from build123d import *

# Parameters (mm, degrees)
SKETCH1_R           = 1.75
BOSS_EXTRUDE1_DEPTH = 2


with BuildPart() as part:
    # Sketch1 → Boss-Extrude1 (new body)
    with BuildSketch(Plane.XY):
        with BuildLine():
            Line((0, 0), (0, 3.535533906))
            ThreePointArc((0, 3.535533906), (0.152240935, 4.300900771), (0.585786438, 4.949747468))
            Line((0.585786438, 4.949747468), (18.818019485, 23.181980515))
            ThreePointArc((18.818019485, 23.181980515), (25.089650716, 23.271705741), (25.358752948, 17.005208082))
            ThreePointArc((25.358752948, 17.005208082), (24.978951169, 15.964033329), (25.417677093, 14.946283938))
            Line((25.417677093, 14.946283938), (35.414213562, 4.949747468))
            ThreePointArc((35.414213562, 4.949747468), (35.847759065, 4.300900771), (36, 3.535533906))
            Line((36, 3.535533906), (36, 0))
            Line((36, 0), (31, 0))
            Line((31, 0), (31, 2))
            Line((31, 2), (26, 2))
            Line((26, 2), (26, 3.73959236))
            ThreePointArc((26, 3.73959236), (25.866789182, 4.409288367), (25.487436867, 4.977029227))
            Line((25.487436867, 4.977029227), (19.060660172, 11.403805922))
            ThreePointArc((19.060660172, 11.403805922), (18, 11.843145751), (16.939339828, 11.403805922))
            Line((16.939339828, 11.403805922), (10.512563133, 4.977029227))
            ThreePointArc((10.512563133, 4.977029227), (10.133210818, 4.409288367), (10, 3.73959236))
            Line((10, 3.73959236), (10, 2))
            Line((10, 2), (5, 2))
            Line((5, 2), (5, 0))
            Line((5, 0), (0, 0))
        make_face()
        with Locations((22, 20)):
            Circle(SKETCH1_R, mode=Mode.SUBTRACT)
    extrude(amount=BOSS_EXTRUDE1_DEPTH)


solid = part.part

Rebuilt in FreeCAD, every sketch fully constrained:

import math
import FreeCAD as App
import Part
import Sketcher
Q = App.Units.Quantity

doc = App.newDocument("Part")
params = doc.addObject("Spreadsheet::Sheet", "Params")
for row, (alias, value) in enumerate([
    ("sketch1_radius", "2 mm"),
    ("sketch1_diameter", "3.5 mm"),
    ("sketch1_radius2", "1.5 mm"),
    ("sketch1_radius3", "4.5 mm"),
    ("sketch1_width", "5 mm"),
    ("pad1_length", "2 mm"),
], start=1):
    params.set(f"A{row}", alias)
    params.set(f"B{row}", "=" + value)
    params.setAlias(f"B{row}", alias)

body = doc.addObject("PartDesign::Body", "Body")

# Sketch on XY plane
sketch1 = body.newObject("Sketcher::SketchObject", "Sketch")
sketch1.AttachmentSupport = (doc.getObject("XY_Plane"), [""])
sketch1.MapMode = "FlatFace"
sketch1.addGeometry([
    Part.LineSegment(App.Vector(0, 3.535534, 0), App.Vector(0, 0, 0)),  # 0
    Part.LineSegment(App.Vector(0, 0, 0), App.Vector(5, 0, 0)),  # 1
    Part.LineSegment(App.Vector(5, 0, 0), App.Vector(5, 2, 0)),  # 2
    Part.LineSegment(App.Vector(5, 2, 0), App.Vector(10, 2, 0)),  # 3
    Part.LineSegment(App.Vector(10, 2, 0), App.Vector(10, 3.739592, 0)),  # 4
    Part.ArcOfCircle(Part.Circle(App.Vector(11.75, 3.739592, 0), App.Vector(0, 0, 1), 1.75), math.radians(135), math.radians(180)),  # 5
    Part.LineSegment(App.Vector(10.512563, 4.977029, 0), App.Vector(16.93934, 11.403806, 0)),  # 6
    Part.ArcOfCircle(Part.Circle(App.Vector(18, 10.343146, 0), App.Vector(0, 0, 1), 1.5), math.radians(45), math.radians(135)),  # 7
    Part.LineSegment(App.Vector(19.06066, 11.403806, 0), App.Vector(25.487437, 4.977029, 0)),  # 8
    Part.ArcOfCircle(Part.Circle(App.Vector(24.25, 3.739592, 0), App.Vector(0, 0, 1), 1.75), math.radians(0), math.radians(45)),  # 9
    Part.LineSegment(App.Vector(26, 3.739592, 0), App.Vector(26, 2, 0)),  # 10
    Part.LineSegment(App.Vector(26, 2, 0), App.Vector(31, 2, 0)),  # 11
    Part.LineSegment(App.Vector(31, 2, 0), App.Vector(31, 0, 0)),  # 12
    Part.LineSegment(App.Vector(31, 0, 0), App.Vector(36, 0, 0)),  # 13
    Part.LineSegment(App.Vector(36, 0, 0), App.Vector(36, 3.535534, 0)),  # 14
    Part.ArcOfCircle(Part.Circle(App.Vector(34, 3.535534, 0), App.Vector(0, 0, 1), 2), math.radians(0), math.radians(45)),  # 15
    Part.LineSegment(App.Vector(35.414214, 4.949747, 0), App.Vector(25.417677, 14.946284, 0)),  # 16
    Part.ArcOfCircle(Part.Circle(App.Vector(26.478337, 16.006944, 0), App.Vector(0, 0, 1), 1.5), math.radians(138.27859), math.radians(225)),  # 17
    Part.ArcOfCircle(Part.Circle(App.Vector(22, 20, 0), App.Vector(0, 0, 1), 4.5), math.radians(-41.721411), math.radians(135)),  # 18
    Part.LineSegment(App.Vector(18.818019, 23.181981, 0), App.Vector(0.585786, 4.949747, 0)),  # 19
    Part.ArcOfCircle(Part.Circle(App.Vector(2, 3.535534, 0), App.Vector(0, 0, 1), 2), math.radians(135), math.radians(180)),  # 20
    Part.Circle(App.Vector(22, 20, 0), App.Vector(0, 0, 1), 1.75),  # 21
], False)
sketch1.addConstraint([
    Sketcher.Constraint("Coincident", 0, 2, 1, 1),
    Sketcher.Constraint("Coincident", 1, 2, 2, 1),
    Sketcher.Constraint("Coincident", 2, 2, 3, 1),
    Sketcher.Constraint("Coincident", 3, 2, 4, 1),
    Sketcher.Constraint("Tangent", 4, 2, 5, 2),
    Sketcher.Constraint("Tangent", 5, 1, 6, 1),
    Sketcher.Constraint("Tangent", 6, 2, 7, 2),
    Sketcher.Constraint("Tangent", 7, 1, 8, 1),
    Sketcher.Constraint("Tangent", 8, 2, 9, 2),
    Sketcher.Constraint("Tangent", 9, 1, 10, 1),
    Sketcher.Constraint("Coincident", 10, 2, 11, 1),
    Sketcher.Constraint("Coincident", 11, 2, 12, 1),
    Sketcher.Constraint("Coincident", 12, 2, 13, 1),
    Sketcher.Constraint("Coincident", 13, 2, 14, 1),
    Sketcher.Constraint("Tangent", 14, 2, 15, 1),
    Sketcher.Constraint("Tangent", 15, 2, 16, 1),
    Sketcher.Constraint("Tangent", 16, 2, 17, 2),
    Sketcher.Constraint("Tangent", 17, 1, 18, 1),
    Sketcher.Constraint("Tangent", 18, 2, 19, 1),
    Sketcher.Constraint("Tangent", 19, 2, 20, 1),
    Sketcher.Constraint("Tangent", 20, 2, 0, 1),
    Sketcher.Constraint("Vertical", 0),
    Sketcher.Constraint("Horizontal", 1),
    Sketcher.Constraint("Vertical", 2),
    Sketcher.Constraint("Horizontal", 3),
    Sketcher.Constraint("Vertical", 4),
    Sketcher.Constraint("Vertical", 10),
    Sketcher.Constraint("Horizontal", 11),
    Sketcher.Constraint("Vertical", 12),
    Sketcher.Constraint("Horizontal", 13),
    Sketcher.Constraint("Vertical", 14),
    Sketcher.Constraint("Coincident", 0, 2, -1, 1),
    Sketcher.Constraint("Coincident", 21, 3, 18, 3),
    Sketcher.Constraint("Equal", 5, 9),
    Sketcher.Constraint("Equal", 7, 17),
    Sketcher.Constraint("Equal", 15, 20),
    Sketcher.Constraint("Equal", 9, 21),
    Sketcher.Constraint("PointOnObject", 12, 2, -1),
    Sketcher.Constraint("Perpendicular", 6, 8),
    Sketcher.Constraint("Parallel", 8, 16),
    Sketcher.Constraint("Perpendicular", 16, 19),
    Sketcher.Constraint("Horizontal", 5, 3, 9, 3),
    Sketcher.Constraint("Horizontal", 15, 3, 20, 3),
    Sketcher.Constraint("Horizontal", 6, 2, 7, 1),
    Sketcher.Constraint("Horizontal", 3, 2, 10, 2),
    Sketcher.Constraint("Equal", 1, 3),
    Sketcher.Constraint("Equal", 3, 11),
    Sketcher.Constraint("Equal", 11, 13),
    Sketcher.Constraint("Radius", 15, Q("2 mm")),
    Sketcher.Constraint("Diameter", 21, Q("3.5 mm")),
    Sketcher.Constraint("Radius", 7, Q("1.5 mm")),
    Sketcher.Constraint("Radius", 18, Q("4.5 mm")),
    Sketcher.Constraint("DistanceX", 1, 1, 1, 2, Q("5 mm")),
    Sketcher.Constraint("DistanceY", 2, 1, 2, 2, Q("2 mm")),
    Sketcher.Constraint("DistanceX", -1, 1, 7, 3, Q("18 mm")),
    Sketcher.Constraint("DistanceX", -1, 1, 18, 3, Q("22 mm")),
    Sketcher.Constraint("DistanceY", -1, 1, 18, 3, Q("20 mm")),
    Sketcher.Constraint("DistanceY", 7, 3, 17, 3, Q("5.663798 mm")),
])
sketch1.setExpression("Constraints[48]", "Params.sketch1_radius")
sketch1.setExpression("Constraints[49]", "Params.sketch1_diameter")
sketch1.setExpression("Constraints[50]", "Params.sketch1_radius2")
sketch1.setExpression("Constraints[51]", "Params.sketch1_radius3")
sketch1.setExpression("Constraints[52]", "Params.sketch1_width")
pad1 = body.newObject("PartDesign::Pad", "Pad")
pad1.Profile = sketch1
pad1.setExpression("Length", "Params.pad1_length")

doc.recompute()
